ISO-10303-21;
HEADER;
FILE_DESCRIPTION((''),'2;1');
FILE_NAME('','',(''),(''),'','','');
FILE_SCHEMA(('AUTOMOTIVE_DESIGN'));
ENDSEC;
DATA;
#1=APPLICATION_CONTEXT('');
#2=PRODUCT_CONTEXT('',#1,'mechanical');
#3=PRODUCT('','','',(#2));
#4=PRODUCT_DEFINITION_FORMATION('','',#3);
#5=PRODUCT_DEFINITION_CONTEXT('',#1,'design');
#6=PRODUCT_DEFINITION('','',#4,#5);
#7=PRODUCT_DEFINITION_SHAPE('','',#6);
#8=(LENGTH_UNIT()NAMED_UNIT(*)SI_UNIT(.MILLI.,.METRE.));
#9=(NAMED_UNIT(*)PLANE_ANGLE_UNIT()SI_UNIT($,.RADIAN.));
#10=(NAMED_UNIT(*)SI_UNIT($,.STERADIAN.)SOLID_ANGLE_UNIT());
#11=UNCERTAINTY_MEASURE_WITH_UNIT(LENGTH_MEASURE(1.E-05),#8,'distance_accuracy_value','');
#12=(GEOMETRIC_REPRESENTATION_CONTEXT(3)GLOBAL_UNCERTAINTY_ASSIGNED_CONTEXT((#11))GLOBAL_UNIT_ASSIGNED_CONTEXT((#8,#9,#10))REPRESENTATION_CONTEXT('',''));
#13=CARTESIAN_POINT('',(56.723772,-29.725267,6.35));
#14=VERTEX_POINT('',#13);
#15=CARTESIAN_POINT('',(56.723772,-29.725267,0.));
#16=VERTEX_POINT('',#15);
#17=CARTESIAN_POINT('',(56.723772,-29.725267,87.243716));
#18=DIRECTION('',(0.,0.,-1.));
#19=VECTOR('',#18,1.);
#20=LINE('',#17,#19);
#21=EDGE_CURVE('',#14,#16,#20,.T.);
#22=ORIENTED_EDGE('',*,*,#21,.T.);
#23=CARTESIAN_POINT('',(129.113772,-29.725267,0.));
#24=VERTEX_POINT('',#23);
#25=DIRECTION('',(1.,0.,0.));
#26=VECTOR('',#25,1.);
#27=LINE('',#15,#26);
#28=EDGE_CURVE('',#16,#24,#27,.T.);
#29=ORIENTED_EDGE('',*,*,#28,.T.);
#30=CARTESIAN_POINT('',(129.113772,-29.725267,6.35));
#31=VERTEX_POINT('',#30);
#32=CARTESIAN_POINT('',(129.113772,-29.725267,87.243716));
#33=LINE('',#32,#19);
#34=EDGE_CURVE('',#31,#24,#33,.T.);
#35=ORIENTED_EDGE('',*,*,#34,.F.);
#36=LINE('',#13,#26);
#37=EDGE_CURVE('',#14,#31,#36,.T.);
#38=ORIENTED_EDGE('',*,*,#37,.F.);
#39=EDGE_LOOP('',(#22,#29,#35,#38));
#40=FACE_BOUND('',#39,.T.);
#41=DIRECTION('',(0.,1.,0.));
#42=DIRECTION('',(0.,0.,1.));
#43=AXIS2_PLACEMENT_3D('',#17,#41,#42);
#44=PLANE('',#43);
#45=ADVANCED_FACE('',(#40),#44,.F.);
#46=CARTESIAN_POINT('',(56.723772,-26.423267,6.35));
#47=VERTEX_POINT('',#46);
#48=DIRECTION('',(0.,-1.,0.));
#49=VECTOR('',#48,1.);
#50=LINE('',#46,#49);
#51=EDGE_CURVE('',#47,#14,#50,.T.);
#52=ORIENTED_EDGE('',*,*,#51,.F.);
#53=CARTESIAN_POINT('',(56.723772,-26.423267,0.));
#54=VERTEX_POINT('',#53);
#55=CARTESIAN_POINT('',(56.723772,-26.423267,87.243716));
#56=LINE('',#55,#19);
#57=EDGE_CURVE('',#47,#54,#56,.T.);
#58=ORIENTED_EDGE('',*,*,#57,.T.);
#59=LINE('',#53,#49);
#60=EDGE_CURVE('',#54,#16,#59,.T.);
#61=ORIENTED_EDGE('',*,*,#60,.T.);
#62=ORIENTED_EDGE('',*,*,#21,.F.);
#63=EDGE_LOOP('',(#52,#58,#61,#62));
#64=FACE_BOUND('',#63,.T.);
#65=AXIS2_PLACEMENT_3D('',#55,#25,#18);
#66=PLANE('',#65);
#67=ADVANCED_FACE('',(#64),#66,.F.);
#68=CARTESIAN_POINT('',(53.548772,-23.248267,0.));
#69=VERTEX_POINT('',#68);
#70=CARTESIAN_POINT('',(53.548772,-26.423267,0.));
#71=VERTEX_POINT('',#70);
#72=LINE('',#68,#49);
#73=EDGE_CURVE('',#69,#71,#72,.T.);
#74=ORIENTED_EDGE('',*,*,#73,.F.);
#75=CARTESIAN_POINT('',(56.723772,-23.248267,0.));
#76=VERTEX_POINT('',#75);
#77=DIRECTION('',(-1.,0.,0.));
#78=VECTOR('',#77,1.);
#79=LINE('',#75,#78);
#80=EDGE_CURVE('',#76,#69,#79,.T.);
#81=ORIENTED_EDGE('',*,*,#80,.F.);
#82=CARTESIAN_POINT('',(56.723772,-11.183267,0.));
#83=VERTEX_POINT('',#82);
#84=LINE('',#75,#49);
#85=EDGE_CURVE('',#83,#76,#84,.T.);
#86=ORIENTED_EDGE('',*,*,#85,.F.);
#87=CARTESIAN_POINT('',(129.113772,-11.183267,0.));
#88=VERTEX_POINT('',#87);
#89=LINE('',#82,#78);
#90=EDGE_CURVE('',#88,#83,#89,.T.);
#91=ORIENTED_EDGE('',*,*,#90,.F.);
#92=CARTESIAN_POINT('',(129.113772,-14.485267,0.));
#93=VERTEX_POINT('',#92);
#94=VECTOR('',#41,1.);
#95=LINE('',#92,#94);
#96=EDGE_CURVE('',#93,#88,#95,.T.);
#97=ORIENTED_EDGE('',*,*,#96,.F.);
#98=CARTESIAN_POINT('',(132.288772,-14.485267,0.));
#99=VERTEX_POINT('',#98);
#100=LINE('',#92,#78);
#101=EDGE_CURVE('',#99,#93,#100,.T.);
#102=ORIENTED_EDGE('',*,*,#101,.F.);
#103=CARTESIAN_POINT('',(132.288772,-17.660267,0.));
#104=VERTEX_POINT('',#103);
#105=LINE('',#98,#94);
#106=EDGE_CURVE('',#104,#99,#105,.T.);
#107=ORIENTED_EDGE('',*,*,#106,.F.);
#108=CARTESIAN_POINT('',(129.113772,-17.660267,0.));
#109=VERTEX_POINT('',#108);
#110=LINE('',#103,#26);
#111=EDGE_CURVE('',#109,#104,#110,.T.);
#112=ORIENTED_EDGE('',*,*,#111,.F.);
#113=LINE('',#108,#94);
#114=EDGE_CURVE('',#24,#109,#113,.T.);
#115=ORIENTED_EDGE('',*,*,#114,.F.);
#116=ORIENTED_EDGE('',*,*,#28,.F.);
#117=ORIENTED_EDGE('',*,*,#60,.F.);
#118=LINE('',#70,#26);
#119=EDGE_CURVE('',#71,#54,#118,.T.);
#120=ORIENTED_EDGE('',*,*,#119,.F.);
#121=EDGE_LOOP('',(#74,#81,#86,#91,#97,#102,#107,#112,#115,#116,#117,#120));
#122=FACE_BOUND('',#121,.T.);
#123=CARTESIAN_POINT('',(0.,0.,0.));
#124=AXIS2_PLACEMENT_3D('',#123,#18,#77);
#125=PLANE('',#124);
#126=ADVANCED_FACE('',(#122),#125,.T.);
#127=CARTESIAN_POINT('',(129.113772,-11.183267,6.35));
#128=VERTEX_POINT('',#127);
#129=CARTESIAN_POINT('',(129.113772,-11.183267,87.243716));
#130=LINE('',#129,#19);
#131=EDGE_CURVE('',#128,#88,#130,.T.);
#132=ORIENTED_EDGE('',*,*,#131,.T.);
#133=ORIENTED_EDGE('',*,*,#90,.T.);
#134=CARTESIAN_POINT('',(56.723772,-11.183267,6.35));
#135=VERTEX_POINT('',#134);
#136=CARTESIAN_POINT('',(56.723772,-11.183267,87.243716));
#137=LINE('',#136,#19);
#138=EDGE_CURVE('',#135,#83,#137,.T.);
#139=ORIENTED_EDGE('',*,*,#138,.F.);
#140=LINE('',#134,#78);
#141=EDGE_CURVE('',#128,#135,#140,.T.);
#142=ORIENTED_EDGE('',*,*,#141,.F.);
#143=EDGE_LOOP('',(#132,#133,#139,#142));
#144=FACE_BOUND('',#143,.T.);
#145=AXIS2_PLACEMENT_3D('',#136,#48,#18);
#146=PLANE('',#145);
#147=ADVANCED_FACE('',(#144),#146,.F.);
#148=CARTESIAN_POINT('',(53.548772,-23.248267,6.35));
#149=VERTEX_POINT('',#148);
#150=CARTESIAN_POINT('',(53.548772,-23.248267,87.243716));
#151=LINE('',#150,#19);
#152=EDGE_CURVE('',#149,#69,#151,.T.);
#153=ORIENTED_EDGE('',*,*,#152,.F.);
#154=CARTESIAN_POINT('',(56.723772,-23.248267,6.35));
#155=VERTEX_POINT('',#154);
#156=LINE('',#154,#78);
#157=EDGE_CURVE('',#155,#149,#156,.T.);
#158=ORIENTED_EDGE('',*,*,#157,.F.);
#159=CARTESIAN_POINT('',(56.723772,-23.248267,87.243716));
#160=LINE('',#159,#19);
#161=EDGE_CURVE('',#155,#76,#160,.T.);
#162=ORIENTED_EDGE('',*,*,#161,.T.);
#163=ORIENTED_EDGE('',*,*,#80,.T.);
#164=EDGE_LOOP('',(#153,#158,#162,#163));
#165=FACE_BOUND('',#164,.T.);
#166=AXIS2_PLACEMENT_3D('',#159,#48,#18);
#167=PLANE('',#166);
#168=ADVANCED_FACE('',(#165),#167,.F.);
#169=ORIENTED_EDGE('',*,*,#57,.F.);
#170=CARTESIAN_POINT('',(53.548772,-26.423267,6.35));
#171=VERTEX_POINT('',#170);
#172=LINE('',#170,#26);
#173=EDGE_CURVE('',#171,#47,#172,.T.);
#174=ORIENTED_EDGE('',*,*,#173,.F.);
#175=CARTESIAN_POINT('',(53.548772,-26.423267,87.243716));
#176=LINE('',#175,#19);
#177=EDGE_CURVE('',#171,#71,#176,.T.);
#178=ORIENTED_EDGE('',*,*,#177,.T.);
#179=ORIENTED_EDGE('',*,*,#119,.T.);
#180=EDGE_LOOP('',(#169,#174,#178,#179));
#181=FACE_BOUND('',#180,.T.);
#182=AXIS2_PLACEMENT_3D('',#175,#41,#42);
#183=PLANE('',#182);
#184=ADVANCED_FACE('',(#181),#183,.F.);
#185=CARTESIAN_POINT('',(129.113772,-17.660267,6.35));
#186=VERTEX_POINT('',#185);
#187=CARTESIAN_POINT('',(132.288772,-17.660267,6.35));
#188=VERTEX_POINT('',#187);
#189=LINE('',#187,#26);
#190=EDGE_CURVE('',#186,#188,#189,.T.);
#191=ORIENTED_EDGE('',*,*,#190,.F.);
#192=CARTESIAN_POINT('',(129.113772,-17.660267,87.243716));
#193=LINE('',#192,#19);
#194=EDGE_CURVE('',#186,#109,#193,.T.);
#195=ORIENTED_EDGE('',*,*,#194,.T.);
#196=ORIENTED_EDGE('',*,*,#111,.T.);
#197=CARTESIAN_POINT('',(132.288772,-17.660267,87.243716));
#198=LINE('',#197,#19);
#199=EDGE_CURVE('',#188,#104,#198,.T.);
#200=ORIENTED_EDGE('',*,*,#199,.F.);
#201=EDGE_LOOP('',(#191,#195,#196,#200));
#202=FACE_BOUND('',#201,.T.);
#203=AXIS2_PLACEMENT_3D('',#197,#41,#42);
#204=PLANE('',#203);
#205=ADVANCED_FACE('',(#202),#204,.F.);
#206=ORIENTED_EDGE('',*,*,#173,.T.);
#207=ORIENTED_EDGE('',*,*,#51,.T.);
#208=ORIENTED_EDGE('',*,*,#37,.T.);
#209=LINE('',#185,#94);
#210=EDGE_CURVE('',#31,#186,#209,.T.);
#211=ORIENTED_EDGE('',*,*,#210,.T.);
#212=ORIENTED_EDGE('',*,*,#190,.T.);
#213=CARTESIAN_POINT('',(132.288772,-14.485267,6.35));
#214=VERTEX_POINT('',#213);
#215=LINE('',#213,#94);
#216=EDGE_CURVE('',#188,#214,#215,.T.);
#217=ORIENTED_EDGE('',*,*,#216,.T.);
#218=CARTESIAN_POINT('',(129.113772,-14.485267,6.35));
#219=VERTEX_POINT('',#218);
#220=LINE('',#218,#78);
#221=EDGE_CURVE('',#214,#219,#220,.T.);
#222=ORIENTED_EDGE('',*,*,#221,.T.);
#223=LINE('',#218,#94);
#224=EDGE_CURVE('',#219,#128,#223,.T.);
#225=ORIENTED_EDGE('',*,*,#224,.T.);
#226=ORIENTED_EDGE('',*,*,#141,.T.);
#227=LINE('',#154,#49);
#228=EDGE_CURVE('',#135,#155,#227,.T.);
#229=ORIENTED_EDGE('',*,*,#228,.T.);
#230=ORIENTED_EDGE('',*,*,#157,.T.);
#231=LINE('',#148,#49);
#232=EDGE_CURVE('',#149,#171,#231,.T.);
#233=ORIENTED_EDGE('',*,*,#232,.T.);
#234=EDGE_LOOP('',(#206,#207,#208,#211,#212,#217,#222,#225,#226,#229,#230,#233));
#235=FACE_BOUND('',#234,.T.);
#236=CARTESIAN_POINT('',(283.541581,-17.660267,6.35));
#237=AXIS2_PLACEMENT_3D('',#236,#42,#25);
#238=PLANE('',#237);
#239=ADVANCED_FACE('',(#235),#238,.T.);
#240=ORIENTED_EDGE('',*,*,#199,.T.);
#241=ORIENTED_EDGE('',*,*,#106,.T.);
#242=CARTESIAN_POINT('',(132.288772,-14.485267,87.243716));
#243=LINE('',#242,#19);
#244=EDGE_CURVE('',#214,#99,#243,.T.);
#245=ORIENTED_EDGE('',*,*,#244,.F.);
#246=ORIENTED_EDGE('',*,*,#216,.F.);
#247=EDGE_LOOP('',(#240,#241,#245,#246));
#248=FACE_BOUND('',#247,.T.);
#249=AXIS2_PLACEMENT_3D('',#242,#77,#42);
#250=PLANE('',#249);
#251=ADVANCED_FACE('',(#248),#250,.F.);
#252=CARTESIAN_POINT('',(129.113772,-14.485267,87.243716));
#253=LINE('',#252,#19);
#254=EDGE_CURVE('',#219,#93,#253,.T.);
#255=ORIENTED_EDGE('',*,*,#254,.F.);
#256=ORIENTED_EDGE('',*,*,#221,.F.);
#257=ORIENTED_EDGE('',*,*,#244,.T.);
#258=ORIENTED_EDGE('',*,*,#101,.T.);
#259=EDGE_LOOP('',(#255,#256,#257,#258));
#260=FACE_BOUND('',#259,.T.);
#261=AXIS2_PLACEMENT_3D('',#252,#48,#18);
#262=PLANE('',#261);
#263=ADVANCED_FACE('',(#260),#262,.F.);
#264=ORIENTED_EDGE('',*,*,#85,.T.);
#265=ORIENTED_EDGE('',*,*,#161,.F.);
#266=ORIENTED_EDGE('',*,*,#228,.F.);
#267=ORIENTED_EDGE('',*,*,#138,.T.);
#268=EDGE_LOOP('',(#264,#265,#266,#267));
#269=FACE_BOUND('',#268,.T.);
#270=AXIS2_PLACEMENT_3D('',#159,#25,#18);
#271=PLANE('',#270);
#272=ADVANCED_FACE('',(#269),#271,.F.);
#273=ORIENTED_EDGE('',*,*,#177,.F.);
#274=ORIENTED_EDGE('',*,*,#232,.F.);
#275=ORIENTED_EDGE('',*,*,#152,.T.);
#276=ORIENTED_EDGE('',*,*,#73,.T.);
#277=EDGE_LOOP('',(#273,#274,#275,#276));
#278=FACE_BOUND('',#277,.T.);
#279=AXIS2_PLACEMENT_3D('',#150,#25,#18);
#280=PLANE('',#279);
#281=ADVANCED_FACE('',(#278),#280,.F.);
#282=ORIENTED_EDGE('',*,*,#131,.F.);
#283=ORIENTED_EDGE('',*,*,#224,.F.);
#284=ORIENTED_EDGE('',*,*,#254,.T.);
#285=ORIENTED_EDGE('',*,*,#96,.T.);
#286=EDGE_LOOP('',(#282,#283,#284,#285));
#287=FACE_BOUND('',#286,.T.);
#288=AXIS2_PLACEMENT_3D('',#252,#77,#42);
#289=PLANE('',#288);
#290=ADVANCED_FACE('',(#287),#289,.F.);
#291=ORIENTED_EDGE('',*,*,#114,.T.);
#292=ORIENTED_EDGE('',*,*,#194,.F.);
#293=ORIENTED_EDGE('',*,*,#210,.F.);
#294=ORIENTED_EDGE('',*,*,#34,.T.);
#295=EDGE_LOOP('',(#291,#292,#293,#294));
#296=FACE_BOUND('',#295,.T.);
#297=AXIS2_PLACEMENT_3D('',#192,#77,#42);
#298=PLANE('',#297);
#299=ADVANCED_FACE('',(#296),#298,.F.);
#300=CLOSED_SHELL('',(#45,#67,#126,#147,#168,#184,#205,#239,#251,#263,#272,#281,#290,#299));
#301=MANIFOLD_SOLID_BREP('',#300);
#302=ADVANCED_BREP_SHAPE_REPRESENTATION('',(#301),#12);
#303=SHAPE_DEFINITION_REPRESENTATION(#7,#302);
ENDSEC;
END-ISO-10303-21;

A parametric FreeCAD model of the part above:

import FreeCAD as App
import Part
import Sketcher
Q = App.Units.Quantity


def add_polygon(sketch, points):
    """Adds a closed chain of lines whose ends are joined by coincident constraints."""
    first, n = sketch.GeometryCount, len(points)
    for a, b in zip(points, points[1:] + points[:1]):
        sketch.addGeometry(Part.LineSegment(App.Vector(*a, 0), App.Vector(*b, 0)), False)
    for i in range(n):
        sketch.addConstraint(Sketcher.Constraint("Coincident", first + i, 2, first + (i + 1) % n, 1))

doc = App.newDocument("Part")
body = doc.addObject("PartDesign::Body", "Body")

sketch1 = body.newObject("Sketcher::SketchObject", "Sketch")
sketch1.AttachmentSupport = (doc.getObject("XY_Plane"), [""])
sketch1.MapMode = "FlatFace"
add_polygon(sketch1, [(132.3, -14.5), (129.1, -14.5), (129.1, -11.2), (56.7, -11.2), (56.7, -23.2), (53.5, -23.2), (53.5, -26.4), (56.7, -26.4), (56.7, -29.7), (129.1, -29.7), (129.1, -17.7), (132.3, -17.7)])
sketch1.addConstraint(Sketcher.Constraint("Horizontal", 0))
sketch1.addConstraint(Sketcher.Constraint("Vertical", 1))
sketch1.addConstraint(Sketcher.Constraint("Horizontal", 2))
sketch1.addConstraint(Sketcher.Constraint("Vertical", 3))
sketch1.addConstraint(Sketcher.Constraint("Horizontal", 4))
sketch1.addConstraint(Sketcher.Constraint("Vertical", 5))
sketch1.addConstraint(Sketcher.Constraint("Horizontal", 6))
sketch1.addConstraint(Sketcher.Constraint("Vertical", 7))
sketch1.addConstraint(Sketcher.Constraint("Horizontal", 8))
sketch1.addConstraint(Sketcher.Constraint("Vertical", 9))
sketch1.addConstraint(Sketcher.Constraint("Horizontal", 10))
sketch1.addConstraint(Sketcher.Constraint("Vertical", 11))
sketch1.addConstraint(Sketcher.Constraint("Vertical", 3, 2, 6, 2))
sketch1.addConstraint(Sketcher.Constraint("Vertical", 1, 2, 8, 2))
sketch1.addConstraint(Sketcher.Constraint("Equal", 0, 4))
sketch1.addConstraint(Sketcher.Constraint("Equal", 10, 5))
sketch1.addConstraint(Sketcher.Constraint("Equal", 1, 7))
sketch1.addConstraint(Sketcher.Constraint("Equal", 3, 9))
sketch1.addConstraint(Sketcher.Constraint("DistanceX", 2, 2, 2, 1, Q("2.85 in")))
sketch1.addConstraint(Sketcher.Constraint("DistanceY", 1, 1, 1, 2, Q("0.13 in")))
sketch1.addConstraint(Sketcher.Constraint("DistanceY", 5, 2, 2, 2, Q("0.6 in")))
sketch1.addConstraint(Sketcher.Constraint("DistanceX", 0, 2, 0, 1, Q("0.125 in")))
sketch1.addConstraint(Sketcher.Constraint("DistanceX", -1, 1, 0, 2, 129.113772))
sketch1.addConstraint(Sketcher.Constraint("DistanceY", 0, 2, -1, 1, 14.485267))
pad1 = body.newObject("PartDesign::Pad", "Pad")
pad1.Profile = sketch1
pad1.Length = Q("0.25 in")

doc.recompute()
